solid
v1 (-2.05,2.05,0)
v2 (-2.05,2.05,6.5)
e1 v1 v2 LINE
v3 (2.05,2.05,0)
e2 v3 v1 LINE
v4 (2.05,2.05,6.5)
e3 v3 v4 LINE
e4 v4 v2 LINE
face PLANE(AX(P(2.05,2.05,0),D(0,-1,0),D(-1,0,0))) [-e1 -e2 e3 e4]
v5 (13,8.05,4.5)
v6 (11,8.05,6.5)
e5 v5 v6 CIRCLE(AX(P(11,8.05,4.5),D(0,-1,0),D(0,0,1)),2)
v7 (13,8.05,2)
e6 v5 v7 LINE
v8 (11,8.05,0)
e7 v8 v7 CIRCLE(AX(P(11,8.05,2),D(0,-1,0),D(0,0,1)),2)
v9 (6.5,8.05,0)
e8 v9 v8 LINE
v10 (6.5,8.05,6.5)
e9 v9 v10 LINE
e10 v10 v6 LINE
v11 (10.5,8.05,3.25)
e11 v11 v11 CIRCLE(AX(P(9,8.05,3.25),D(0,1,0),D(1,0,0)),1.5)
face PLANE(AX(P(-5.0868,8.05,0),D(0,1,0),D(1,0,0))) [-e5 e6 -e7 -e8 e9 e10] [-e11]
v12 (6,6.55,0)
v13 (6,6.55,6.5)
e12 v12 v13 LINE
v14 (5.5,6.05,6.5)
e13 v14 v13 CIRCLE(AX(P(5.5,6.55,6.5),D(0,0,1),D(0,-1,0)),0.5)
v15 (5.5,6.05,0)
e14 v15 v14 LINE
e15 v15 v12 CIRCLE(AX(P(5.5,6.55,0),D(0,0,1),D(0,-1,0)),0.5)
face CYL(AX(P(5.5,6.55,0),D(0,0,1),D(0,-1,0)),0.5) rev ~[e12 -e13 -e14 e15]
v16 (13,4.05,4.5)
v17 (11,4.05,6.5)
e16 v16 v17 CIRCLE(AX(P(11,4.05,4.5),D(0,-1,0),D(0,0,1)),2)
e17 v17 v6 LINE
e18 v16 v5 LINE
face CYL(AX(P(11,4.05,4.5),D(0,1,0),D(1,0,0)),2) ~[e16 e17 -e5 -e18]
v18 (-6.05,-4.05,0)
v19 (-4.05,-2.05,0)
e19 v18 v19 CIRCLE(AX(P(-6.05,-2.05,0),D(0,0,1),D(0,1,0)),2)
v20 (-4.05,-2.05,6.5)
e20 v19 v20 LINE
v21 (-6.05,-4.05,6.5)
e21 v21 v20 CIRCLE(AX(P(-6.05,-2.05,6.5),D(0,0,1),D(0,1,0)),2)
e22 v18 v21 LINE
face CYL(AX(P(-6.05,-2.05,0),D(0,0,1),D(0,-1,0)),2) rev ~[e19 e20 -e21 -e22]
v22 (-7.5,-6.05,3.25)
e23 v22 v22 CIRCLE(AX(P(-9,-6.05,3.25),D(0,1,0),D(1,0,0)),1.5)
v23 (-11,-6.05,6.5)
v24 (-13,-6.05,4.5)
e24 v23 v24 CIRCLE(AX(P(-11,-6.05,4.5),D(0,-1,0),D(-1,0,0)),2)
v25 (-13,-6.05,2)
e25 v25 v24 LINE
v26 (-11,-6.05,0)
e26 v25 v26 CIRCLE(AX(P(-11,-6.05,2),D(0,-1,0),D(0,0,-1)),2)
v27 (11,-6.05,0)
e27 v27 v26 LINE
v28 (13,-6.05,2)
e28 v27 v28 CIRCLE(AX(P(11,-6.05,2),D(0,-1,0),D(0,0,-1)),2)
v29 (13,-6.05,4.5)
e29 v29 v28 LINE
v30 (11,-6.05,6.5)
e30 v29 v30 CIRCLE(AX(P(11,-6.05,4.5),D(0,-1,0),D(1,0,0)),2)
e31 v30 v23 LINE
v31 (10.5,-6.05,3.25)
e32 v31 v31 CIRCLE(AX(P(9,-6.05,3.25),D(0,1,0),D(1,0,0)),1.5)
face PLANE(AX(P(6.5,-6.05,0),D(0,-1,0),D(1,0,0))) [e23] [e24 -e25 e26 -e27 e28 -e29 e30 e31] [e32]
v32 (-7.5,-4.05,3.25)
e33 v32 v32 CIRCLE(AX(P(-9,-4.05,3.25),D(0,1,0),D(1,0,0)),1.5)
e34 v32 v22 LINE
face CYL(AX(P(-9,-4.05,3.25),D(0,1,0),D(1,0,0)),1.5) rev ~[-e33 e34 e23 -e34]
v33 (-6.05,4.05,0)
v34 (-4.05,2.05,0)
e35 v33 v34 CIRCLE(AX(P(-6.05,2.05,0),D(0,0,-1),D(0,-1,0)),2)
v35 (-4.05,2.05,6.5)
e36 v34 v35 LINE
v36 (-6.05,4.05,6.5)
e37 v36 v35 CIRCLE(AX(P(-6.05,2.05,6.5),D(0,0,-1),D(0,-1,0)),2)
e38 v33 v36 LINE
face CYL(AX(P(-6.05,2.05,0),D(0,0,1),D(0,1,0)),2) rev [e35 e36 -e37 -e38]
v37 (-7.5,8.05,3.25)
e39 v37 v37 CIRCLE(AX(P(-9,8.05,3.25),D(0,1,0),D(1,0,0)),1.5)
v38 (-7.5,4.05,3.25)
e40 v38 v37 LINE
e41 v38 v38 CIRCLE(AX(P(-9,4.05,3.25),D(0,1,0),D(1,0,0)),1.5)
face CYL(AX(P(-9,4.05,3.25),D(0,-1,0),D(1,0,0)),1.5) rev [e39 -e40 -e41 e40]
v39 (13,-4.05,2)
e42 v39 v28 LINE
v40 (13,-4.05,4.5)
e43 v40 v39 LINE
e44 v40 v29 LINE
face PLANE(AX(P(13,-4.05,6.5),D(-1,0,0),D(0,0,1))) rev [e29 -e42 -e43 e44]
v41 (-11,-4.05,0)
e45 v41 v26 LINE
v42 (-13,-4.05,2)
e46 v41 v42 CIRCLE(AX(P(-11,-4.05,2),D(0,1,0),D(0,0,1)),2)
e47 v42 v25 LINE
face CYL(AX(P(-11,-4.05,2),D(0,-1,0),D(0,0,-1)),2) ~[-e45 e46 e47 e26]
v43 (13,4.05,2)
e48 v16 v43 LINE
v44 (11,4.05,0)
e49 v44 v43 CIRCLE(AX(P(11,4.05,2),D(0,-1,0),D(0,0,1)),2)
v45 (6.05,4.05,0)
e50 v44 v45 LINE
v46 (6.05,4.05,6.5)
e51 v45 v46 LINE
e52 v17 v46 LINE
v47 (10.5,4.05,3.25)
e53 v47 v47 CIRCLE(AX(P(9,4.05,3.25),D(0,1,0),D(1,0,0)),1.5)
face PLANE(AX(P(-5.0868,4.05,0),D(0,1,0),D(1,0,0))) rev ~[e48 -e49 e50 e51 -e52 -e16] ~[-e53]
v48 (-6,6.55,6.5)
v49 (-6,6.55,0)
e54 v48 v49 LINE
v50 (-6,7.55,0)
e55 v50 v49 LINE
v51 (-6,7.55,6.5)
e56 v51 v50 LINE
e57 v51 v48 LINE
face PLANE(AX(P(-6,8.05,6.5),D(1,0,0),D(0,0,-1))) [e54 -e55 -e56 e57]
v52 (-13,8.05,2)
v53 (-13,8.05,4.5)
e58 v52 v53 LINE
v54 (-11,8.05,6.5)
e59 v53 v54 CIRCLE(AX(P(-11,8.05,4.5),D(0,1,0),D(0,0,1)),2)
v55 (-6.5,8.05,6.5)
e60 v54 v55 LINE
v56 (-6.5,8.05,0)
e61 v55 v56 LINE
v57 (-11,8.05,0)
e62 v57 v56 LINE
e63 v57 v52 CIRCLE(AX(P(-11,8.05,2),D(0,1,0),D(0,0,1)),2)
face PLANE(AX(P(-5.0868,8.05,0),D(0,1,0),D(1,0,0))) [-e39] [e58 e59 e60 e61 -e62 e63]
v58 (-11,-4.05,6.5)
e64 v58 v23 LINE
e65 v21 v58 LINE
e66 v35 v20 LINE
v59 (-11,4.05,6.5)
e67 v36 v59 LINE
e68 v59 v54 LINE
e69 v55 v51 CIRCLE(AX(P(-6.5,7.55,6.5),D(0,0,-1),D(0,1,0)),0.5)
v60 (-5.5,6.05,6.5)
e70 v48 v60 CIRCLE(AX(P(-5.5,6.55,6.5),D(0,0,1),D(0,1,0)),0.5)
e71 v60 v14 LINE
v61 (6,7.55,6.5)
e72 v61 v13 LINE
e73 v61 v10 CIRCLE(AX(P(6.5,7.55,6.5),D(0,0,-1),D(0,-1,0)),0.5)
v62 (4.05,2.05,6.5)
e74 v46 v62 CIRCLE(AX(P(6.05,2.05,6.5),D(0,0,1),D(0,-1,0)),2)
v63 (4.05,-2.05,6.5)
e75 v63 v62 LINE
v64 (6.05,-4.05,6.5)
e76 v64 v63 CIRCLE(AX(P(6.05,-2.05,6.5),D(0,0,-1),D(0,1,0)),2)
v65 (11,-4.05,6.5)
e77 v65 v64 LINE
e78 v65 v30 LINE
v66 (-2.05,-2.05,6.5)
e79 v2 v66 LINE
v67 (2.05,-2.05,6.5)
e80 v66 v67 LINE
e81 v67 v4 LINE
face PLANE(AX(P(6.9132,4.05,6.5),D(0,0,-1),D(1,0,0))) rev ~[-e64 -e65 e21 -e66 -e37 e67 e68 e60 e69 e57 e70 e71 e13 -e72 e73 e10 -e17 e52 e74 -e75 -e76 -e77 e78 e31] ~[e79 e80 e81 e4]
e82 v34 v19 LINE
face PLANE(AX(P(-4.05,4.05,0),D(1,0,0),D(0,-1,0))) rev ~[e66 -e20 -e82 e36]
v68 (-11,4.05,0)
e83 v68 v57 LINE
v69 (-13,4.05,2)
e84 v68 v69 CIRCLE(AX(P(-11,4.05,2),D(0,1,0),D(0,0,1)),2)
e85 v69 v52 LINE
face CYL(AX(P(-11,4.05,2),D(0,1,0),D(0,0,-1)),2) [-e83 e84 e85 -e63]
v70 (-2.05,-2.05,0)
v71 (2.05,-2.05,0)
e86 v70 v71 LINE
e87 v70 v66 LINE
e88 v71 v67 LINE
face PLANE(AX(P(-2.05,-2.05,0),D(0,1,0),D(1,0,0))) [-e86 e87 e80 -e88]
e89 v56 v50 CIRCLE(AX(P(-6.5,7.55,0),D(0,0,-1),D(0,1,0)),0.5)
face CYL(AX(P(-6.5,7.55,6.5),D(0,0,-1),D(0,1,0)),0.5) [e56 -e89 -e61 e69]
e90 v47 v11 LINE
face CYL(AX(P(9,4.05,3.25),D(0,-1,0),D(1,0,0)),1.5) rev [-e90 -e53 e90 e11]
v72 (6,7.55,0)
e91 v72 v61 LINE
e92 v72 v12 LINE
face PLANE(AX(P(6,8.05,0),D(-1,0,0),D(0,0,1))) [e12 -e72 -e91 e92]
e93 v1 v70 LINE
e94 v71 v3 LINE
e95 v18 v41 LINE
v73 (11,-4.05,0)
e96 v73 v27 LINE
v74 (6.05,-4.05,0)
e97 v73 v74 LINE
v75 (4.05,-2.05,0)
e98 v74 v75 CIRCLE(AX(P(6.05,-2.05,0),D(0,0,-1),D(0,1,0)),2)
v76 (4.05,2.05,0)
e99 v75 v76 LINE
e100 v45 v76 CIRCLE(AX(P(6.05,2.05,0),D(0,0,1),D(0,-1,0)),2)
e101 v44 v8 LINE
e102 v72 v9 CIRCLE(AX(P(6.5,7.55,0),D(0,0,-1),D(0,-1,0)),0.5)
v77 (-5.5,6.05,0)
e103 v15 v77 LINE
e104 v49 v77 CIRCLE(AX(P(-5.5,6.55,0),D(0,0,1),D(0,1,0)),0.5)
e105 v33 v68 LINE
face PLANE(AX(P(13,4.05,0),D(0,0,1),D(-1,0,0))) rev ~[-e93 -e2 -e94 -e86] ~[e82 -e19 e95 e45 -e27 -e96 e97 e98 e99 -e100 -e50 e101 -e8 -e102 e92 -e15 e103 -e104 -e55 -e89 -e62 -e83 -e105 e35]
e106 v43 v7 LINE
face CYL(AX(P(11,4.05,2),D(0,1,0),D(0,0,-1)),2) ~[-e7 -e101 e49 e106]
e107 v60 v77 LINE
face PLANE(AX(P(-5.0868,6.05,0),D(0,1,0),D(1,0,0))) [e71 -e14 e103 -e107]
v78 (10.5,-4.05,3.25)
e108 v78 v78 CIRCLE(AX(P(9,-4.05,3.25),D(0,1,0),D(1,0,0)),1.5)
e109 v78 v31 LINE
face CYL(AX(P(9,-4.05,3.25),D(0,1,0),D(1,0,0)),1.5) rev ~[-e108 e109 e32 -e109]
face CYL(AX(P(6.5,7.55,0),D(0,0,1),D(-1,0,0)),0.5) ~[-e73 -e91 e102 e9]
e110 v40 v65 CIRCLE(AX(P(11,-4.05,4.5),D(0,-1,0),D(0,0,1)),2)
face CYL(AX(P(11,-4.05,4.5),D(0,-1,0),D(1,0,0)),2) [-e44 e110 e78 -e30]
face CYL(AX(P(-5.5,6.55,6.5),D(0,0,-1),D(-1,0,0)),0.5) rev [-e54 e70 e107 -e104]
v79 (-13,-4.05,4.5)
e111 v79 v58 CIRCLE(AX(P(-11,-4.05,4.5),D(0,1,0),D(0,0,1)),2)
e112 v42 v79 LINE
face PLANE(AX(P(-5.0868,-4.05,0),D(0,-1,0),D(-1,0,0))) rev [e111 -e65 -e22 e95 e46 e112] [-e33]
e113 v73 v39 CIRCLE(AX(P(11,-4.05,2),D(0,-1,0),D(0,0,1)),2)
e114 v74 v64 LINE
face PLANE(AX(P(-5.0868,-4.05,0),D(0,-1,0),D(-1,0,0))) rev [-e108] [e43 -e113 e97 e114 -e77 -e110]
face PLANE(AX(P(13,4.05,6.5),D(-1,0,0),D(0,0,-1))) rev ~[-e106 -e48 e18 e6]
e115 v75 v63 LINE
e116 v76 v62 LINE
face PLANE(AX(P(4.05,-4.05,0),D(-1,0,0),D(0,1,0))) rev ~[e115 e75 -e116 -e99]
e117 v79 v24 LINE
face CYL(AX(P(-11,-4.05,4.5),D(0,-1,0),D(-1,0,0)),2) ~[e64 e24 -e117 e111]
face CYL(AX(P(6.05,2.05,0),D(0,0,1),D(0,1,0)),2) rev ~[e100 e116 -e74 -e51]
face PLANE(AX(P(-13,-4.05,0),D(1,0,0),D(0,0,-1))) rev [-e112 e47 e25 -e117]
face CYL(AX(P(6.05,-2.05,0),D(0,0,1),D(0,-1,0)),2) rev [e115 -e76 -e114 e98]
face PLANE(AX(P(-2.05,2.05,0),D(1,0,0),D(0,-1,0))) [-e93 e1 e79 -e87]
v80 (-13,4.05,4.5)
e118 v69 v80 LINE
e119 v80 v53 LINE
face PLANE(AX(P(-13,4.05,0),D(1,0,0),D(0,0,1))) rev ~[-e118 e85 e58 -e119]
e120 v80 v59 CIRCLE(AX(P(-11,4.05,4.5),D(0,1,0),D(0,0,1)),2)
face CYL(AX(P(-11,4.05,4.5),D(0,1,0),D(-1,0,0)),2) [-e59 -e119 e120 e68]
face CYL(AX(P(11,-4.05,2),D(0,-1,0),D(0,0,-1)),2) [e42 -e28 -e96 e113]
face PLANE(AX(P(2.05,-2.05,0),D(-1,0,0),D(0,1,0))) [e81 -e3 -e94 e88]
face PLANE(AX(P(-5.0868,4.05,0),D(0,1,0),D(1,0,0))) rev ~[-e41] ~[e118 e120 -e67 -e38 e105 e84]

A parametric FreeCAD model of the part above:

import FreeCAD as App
import Part
import Sketcher
from FreeCAD import Vector


def edges_at(feature, points):
    """Names of the edges that pass closest to the given points."""
    edges = feature.Shape.Edges
    near = lambda p: min(range(len(edges)), key=lambda i: edges[i].distToShape(Part.Vertex(*p))[0])
    return sorted({f"Edge{near(p) + 1}" for p in points})


def add_polygon(sketch, points):
    """Adds a closed chain of lines whose ends are joined by coincident constraints."""
    first, n = sketch.GeometryCount, len(points)
    for a, b in zip(points, points[1:] + points[:1]):
        sketch.addGeometry(Part.LineSegment(App.Vector(*a, 0), App.Vector(*b, 0)), False)
    for i in range(n):
        sketch.addConstraint(Sketcher.Constraint("Coincident", first + i, 2, first + (i + 1) % n, 1))

doc = App.newDocument("Part")
body = doc.addObject("PartDesign::Body", "Body")

# Sketch on XY plane
sketch1 = body.newObject("Sketcher::SketchObject", "Sketch")
sketch1.AttachmentSupport = (doc.getObject("XY_Plane"), [""])
sketch1.MapMode = "FlatFace"
add_polygon(sketch1, [(4.05, -4.05), (4.05, 4.05), (-4.05, 4.05), (-4.05, -4.05)])  # lines 0-3
add_polygon(sketch1, [(-2.05, 2.05), (2.05, 2.05), (2.05, -2.05), (-2.05, -2.05)])  # lines 4-7
sketch1.addConstraint(Sketcher.Constraint("Vertical", 0))
sketch1.addConstraint(Sketcher.Constraint("Horizontal", 1))
sketch1.addConstraint(Sketcher.Constraint("Vertical", 2))
sketch1.addConstraint(Sketcher.Constraint("Horizontal", 3))
sketch1.addConstraint(Sketcher.Constraint("Horizontal", 4))
sketch1.addConstraint(Sketcher.Constraint("Vertical", 5))
sketch1.addConstraint(Sketcher.Constraint("Horizontal", 6))
sketch1.addConstraint(Sketcher.Constraint("Vertical", 7))
sketch1.addConstraint(Sketcher.Constraint("Symmetric", 0, 2, 2, 2, -1, 1))
sketch1.addConstraint(Sketcher.Constraint("Symmetric", 4, 2, 6, 2, -1, 1))
sketch1.addConstraint(Sketcher.Constraint("Equal", 3, 0))
sketch1.addConstraint(Sketcher.Constraint("Equal", 6, 5))
sketch1.addConstraint(Sketcher.Constraint("DistanceX", 1, 2, 1, 1, 8.1))
sketch1.addConstraint(Sketcher.Constraint("DistanceX", 4, 1, 4, 2, 4.1))
pad1 = body.newObject("PartDesign::Pad", "Pad")
pad1.Profile = sketch1
pad1.Length = 6.5

# Sketch on XZ plane
sketch2 = body.newObject("Sketcher::SketchObject", "Sketch001")
sketch2.AttachmentSupport = (doc.getObject("XZ_Plane"), [""])
sketch2.MapMode = "FlatFace"
sketch2.AttachmentOffset = App.Placement(Vector(0, 0, -4.05), App.Rotation())
add_polygon(sketch2, [(13, 0), (-13, 0), (-13, 6.5), (13, 6.5)])  # lines 0-3
sketch2.addGeometry(Part.Circle(Vector(9, 3.25, 0), Vector(0, 0, 1), 1.5), False)  # 4
sketch2.addGeometry(Part.Circle(Vector(-9, 3.25, 0), Vector(0, 0, 1), 1.5), False)  # 5
sketch2.addConstraint(Sketcher.Constraint("Horizontal", 0))
sketch2.addConstraint(Sketcher.Constraint("Vertical", 1))
sketch2.addConstraint(Sketcher.Constraint("Horizontal", 2))
sketch2.addConstraint(Sketcher.Constraint("Vertical", 3))
sketch2.addConstraint(Sketcher.Constraint("Equal", 4, 5))
sketch2.addConstraint(Sketcher.Constraint("Symmetric", 0, 2, 3, 2, -1, 1))
sketch2.addConstraint(Sketcher.Constraint("Symmetric", 4, 3, 5, 3, -2))
sketch2.addConstraint(Sketcher.Constraint("Diameter", 4, 3.0))
sketch2.addConstraint(Sketcher.Constraint("DistanceX", 0, 2, 0, 1, 26.0))
sketch2.addConstraint(Sketcher.Constraint("DistanceY", 1, 1, 1, 2, 6.5))
sketch2.addConstraint(Sketcher.Constraint("DistanceX", 5, 3, 4, 3, 18.0))
sketch2.addConstraint(Sketcher.Constraint("DistanceY", -1, 1, 4, 3, 3.25))
pad2 = body.newObject("PartDesign::Pad", "Pad001")
pad2.Profile = sketch2
pad2.Length = 4
pad2.Reversed = True
doc.recompute()

fillet = body.newObject("PartDesign::Fillet", "Fillet")
fillet.Base = (pad2, edges_at(pad2, [(4.05, 4.05, 3.25), (-4.05, 4.05, 3.25)]))
fillet.Radius = 2
doc.recompute()

fillet2 = body.newObject("PartDesign::Fillet", "Fillet001")
fillet2.Base = (fillet, edges_at(fillet, [(-4.05, -4.05, 3.25), (4.05, -4.05, 3.25)]))
fillet2.Radius = 2
doc.recompute()

fillet3 = body.newObject("PartDesign::Fillet", "Fillet002")
fillet3.Base = (fillet2, edges_at(fillet2, [
    (-13, 6.05, 6.5),
    (13, 6.05, 6.5),
    (13, 6.05, 0),
    (-13, 6.05, 0),
]))
fillet3.Radius = 2

# Sketch on XZ plane
sketch3 = body.newObject("Sketcher::SketchObject", "Sketch002")
sketch3.AttachmentSupport = (doc.getObject("XZ_Plane"), [""])
sketch3.MapMode = "FlatFace"
sketch3.AttachmentOffset = App.Placement(Vector(0, 0, -8.05), App.Rotation())
add_polygon(sketch3, [(-6, 0), (-6, 6.5), (6, 6.5), (6, 0)])  # lines 0-3
sketch3.addConstraint(Sketcher.Constraint("Vertical", 0))
sketch3.addConstraint(Sketcher.Constraint("Horizontal", 1))
sketch3.addConstraint(Sketcher.Constraint("Vertical", 2))
sketch3.addConstraint(Sketcher.Constraint("Horizontal", 3))
sketch3.addConstraint(Sketcher.Constraint("Symmetric", 2, 2, 3, 2, -1, 1))
sketch3.addConstraint(Sketcher.Constraint("DistanceX", 1, 1, 1, 2, 12.0))
sketch3.addConstraint(Sketcher.Constraint("DistanceY", 0, 1, 0, 2, 6.5))
pocket1 = body.newObject("PartDesign::Pocket", "Pocket")
pocket1.Profile = sketch3
pocket1.Length = 2
pocket1.Reversed = True
doc.recompute()

fillet4 = body.newObject("PartDesign::Fillet", "Fillet003")
fillet4.Base = (pocket1, edges_at(pocket1, [
    (6, 8.05, 3.25),
    (-6, 8.05, 3.25),
    (-6, 6.05, 3.25),
    (6, 6.05, 3.25),
]))
fillet4.Radius = 0.5
doc.recompute()

mirrored = body.newObject("PartDesign::Mirrored", "Mirrored")
mirrored.TransformMode = "Transform body"
mirrored.MirrorPlane = (doc.getObject("XZ_Plane"), [""])
body.Tip = mirrored

# Sketch on XZ plane
sketch4 = body.newObject("Sketcher::SketchObject", "Sketch003")
sketch4.AttachmentSupport = (doc.getObject("XZ_Plane"), [""])
sketch4.MapMode = "FlatFace"
sketch4.AttachmentOffset = App.Placement(Vector(0, 0, 8.05), App.Rotation())
add_polygon(sketch4, [(-21.3852, -8.2102), (18.5758, -8.2102), (18.5758, 11.7461), (-21.3852, 11.7461)])  # lines 0-3
sketch4.addConstraint(Sketcher.Constraint("Horizontal", 0))
sketch4.addConstraint(Sketcher.Constraint("Vertical", 1))
sketch4.addConstraint(Sketcher.Constraint("Horizontal", 2))
sketch4.addConstraint(Sketcher.Constraint("Vertical", 3))
sketch4.addConstraint(Sketcher.Constraint("DistanceX", 0, 1, 0, 2, 39.961))
sketch4.addConstraint(Sketcher.Constraint("DistanceY", 1, 1, 1, 2, 19.9563))
sketch4.addConstraint(Sketcher.Constraint("DistanceY", -1, 1, 1, 2, 11.746))
sketch4.addConstraint(Sketcher.Constraint("DistanceX", -1, 1, 0, 2, 18.5758))
pocket2 = body.newObject("PartDesign::Pocket", "Pocket001")
pocket2.Profile = sketch4
pocket2.Length = 2

doc.recompute()
